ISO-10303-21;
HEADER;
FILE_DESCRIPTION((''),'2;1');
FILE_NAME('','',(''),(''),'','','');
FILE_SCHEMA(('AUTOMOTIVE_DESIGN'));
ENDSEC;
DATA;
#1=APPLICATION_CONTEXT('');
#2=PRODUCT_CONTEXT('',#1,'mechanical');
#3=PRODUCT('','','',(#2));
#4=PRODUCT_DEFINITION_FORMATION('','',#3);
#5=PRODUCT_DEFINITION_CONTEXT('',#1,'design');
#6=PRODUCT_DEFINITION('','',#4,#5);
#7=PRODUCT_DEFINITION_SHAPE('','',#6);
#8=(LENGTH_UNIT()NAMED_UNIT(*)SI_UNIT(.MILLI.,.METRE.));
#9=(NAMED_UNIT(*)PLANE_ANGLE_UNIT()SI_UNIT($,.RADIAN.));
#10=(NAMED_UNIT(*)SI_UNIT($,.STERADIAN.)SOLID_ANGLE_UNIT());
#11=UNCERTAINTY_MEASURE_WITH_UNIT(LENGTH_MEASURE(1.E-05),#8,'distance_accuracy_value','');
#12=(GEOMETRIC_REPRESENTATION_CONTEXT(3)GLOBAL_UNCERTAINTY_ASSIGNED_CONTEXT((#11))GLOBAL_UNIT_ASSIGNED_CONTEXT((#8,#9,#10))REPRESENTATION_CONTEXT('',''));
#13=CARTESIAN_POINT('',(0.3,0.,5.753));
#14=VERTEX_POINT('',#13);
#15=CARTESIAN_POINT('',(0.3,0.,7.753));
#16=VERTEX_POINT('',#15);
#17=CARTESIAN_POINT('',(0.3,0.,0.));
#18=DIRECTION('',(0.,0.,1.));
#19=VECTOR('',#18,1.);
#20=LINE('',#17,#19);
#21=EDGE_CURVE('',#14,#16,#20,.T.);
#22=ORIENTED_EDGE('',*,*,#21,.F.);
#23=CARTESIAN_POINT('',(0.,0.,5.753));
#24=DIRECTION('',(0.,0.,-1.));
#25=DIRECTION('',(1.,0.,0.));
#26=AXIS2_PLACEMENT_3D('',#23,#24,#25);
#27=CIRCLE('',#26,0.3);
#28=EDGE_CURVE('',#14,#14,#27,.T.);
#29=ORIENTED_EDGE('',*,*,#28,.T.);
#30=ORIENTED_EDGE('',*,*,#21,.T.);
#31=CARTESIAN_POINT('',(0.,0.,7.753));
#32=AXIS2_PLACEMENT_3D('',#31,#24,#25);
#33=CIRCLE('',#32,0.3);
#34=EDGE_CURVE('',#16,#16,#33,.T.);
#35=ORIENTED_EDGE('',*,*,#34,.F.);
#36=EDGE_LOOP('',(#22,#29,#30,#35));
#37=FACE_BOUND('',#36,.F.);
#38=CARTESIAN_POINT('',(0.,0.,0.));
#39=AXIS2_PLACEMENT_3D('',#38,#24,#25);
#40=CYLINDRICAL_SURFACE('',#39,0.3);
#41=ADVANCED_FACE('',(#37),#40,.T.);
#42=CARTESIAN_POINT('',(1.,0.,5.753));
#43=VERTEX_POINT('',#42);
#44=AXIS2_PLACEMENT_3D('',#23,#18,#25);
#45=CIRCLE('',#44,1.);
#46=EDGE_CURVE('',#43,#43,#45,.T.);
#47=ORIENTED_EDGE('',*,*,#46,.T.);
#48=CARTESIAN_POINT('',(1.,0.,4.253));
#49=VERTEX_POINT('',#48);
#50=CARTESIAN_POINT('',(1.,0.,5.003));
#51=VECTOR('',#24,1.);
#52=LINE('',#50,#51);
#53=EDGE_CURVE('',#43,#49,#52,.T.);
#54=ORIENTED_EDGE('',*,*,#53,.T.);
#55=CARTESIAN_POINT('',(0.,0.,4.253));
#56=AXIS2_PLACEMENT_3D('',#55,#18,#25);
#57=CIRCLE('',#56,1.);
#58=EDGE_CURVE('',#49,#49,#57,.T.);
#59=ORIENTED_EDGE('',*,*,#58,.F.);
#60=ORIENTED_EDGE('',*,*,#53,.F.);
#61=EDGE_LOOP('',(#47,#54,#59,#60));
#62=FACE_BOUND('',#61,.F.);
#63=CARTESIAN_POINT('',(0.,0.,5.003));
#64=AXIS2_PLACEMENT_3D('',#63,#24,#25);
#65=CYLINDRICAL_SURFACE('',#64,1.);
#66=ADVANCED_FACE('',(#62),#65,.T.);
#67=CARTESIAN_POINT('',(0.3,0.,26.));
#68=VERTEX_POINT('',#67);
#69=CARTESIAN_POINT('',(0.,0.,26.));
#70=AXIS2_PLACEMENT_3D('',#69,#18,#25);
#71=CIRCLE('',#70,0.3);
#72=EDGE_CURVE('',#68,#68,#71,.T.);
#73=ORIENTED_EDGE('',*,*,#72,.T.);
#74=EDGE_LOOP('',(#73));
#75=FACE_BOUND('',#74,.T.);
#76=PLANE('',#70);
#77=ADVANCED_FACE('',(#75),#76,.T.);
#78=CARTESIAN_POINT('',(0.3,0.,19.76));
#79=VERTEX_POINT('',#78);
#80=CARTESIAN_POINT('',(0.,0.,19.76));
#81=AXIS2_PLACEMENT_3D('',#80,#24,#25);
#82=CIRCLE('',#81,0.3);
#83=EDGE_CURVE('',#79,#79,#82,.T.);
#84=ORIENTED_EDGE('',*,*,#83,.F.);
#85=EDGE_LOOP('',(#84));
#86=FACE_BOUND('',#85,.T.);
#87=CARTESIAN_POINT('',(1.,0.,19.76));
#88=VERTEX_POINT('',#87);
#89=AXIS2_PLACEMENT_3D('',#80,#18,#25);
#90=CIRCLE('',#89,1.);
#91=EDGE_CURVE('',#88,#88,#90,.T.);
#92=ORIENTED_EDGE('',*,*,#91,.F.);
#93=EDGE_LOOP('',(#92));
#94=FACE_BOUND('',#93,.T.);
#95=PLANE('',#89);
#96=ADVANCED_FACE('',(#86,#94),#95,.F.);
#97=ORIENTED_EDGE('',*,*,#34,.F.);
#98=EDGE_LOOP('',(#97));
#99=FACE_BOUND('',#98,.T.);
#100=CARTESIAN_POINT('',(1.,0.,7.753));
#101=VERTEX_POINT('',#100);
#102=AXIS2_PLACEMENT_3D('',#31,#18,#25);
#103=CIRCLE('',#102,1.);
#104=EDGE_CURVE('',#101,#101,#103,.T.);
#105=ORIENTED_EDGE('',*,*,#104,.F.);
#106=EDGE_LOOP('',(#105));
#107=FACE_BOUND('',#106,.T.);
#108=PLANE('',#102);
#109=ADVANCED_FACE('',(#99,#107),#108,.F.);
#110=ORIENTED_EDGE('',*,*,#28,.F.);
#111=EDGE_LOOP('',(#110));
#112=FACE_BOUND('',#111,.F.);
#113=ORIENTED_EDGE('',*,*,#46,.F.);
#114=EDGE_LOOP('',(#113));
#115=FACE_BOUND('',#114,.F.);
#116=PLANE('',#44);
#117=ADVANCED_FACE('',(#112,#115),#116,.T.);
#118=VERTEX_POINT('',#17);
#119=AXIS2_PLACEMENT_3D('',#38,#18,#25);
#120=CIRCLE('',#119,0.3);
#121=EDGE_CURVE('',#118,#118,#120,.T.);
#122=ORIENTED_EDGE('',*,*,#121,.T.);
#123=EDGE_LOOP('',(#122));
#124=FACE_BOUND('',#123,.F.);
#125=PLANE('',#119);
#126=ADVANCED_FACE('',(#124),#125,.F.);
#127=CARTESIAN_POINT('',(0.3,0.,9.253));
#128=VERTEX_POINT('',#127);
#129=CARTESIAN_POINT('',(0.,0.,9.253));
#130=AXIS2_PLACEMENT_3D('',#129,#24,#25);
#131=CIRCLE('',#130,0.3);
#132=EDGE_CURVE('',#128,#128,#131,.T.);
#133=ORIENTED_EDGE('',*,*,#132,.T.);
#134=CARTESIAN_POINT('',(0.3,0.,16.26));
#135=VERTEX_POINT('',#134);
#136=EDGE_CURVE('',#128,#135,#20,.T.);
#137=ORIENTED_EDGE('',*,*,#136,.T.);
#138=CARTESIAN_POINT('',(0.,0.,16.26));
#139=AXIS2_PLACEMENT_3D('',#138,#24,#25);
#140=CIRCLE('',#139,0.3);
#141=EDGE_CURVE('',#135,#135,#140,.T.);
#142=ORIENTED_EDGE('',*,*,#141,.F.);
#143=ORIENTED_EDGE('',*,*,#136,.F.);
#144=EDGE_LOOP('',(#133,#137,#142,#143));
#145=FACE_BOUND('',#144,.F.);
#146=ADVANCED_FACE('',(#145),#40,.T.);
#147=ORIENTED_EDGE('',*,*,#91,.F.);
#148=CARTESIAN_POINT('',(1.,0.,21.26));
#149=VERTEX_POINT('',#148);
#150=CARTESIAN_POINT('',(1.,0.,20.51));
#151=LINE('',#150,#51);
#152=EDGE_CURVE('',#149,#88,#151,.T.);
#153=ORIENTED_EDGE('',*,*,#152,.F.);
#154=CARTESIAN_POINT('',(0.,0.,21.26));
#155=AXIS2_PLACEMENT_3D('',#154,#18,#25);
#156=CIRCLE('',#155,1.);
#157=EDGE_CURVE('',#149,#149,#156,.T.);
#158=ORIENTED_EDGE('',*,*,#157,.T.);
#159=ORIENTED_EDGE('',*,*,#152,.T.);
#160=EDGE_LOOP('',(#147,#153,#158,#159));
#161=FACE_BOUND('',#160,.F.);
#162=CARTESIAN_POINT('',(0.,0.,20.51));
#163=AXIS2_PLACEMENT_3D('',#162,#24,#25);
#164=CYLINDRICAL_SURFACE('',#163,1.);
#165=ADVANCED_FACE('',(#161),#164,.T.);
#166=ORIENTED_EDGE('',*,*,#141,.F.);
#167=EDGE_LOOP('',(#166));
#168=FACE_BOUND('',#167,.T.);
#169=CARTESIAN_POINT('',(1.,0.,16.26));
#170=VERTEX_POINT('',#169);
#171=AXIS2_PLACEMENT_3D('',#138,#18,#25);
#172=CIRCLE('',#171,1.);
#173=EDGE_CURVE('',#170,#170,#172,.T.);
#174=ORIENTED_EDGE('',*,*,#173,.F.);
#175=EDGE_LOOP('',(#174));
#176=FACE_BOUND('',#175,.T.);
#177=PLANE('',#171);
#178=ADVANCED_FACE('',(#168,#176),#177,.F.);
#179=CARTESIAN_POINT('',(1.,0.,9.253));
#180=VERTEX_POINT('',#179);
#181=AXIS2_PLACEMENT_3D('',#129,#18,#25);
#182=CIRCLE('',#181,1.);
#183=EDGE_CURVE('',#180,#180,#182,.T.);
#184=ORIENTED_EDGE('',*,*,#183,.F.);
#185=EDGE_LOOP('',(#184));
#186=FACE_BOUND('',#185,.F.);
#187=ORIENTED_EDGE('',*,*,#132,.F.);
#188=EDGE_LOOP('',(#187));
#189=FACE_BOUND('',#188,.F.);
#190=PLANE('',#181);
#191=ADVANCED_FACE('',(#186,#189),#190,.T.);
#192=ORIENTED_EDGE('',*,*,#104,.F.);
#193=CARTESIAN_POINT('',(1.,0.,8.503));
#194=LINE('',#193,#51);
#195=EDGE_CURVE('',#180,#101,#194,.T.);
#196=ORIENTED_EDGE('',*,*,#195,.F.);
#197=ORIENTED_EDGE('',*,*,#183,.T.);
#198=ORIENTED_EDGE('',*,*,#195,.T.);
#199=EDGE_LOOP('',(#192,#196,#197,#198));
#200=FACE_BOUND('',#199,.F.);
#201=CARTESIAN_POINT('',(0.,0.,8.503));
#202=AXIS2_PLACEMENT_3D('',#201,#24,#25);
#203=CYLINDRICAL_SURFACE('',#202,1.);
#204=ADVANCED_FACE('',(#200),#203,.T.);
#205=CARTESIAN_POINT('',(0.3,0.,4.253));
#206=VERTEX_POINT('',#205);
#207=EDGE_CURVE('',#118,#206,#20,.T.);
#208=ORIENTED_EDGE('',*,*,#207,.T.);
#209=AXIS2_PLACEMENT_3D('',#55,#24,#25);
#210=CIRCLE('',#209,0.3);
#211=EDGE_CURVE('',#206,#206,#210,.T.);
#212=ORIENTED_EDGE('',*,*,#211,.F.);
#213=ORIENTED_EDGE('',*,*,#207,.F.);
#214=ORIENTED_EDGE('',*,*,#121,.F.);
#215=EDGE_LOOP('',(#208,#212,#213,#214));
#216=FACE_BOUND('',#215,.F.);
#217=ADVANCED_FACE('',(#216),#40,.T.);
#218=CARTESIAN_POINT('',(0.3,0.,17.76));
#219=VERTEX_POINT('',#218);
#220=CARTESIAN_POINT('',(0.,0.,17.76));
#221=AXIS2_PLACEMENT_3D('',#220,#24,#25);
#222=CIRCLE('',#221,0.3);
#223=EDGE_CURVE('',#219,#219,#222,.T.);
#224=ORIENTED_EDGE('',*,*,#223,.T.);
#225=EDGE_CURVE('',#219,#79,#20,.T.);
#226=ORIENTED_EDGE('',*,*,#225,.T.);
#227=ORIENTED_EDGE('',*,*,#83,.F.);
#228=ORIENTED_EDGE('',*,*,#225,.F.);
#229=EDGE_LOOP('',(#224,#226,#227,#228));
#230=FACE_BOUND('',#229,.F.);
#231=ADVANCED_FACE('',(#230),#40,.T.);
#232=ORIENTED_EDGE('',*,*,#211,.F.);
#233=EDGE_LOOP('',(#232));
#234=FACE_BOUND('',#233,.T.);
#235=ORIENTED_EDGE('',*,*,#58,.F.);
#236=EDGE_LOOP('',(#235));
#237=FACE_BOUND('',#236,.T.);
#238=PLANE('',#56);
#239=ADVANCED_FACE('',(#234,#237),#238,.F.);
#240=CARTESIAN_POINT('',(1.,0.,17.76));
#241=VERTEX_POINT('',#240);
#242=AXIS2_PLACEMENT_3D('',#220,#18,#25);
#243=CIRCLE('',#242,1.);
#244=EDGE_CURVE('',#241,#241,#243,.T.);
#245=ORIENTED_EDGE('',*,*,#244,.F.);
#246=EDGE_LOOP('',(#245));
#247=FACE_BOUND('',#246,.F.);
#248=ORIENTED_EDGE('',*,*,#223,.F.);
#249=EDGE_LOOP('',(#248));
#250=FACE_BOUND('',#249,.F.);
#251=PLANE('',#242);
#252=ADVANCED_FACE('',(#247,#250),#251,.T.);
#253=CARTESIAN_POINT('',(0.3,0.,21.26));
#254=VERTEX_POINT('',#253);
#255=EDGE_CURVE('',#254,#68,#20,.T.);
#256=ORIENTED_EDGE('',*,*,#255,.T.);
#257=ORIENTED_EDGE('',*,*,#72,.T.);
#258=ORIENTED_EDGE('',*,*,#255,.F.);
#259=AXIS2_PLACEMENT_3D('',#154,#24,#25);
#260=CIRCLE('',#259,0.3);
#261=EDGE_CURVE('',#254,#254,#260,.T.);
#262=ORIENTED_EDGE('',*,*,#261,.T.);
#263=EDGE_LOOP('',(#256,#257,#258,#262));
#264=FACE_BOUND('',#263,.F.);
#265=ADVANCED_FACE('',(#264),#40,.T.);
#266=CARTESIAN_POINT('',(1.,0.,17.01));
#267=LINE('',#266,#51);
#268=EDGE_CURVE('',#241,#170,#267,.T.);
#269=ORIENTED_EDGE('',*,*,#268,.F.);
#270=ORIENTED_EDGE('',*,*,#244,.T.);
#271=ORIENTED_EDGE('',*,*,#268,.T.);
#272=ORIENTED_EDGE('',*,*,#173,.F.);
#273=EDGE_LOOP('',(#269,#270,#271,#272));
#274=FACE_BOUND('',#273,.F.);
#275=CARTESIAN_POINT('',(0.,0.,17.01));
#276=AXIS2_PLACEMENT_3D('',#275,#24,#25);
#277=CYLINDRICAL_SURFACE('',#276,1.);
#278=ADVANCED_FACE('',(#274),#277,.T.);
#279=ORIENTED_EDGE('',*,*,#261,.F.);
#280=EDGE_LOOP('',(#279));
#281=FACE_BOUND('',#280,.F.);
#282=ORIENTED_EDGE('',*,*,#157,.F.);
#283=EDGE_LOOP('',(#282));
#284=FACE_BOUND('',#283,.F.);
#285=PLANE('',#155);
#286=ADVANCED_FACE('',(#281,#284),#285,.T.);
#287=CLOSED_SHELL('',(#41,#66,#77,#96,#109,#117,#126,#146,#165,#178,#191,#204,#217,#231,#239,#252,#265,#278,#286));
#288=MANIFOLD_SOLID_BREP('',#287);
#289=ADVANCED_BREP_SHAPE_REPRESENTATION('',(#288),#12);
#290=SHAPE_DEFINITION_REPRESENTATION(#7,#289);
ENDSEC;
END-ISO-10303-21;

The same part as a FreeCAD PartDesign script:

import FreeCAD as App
import Part
import Sketcher

V = App.Vector
Q = App.Units.Quantity


def add_polygon(sketch, points):
    """Adds a closed chain of lines whose ends are joined by coincident constraints."""
    first, n = sketch.GeometryCount, len(points)
    for a, b in zip(points, points[1:] + points[:1]):
        sketch.addGeometry(Part.LineSegment(App.Vector(*a, 0), App.Vector(*b, 0)), False)
    for i in range(n):
        sketch.addConstraint(Sketcher.Constraint("Coincident", first + i, 2, first + (i + 1) % n, 1))

doc = App.newDocument("Part")
body = doc.addObject("PartDesign::Body", "Body")

# Sketch on XY plane
sketch1 = doc.addObject("Sketcher::SketchObject", "Sketch")
body.addObject(sketch1)
sketch1.AttachmentSupport = (doc.XY_Plane, [""])
sketch1.MapMode = "FlatFace"
sketch1.addGeometry(Part.Circle(V(0, 0, 0), V(0, 0, 1), 0.3), False)
sketch1.addConstraint([
    Sketcher.Constraint("Coincident", 0, 3, -1, 1),
    Sketcher.Constraint("Diameter", 0, Q("0.6 mm")),
])
pad1 = doc.addObject("PartDesign::Pad", "Pad")
body.addObject(pad1)
pad1.Profile = sketch1
pad1.Length = 26

# Sketch on XZ plane
sketch2 = doc.addObject("Sketcher::SketchObject", "Sketch001")
body.addObject(sketch2)
sketch2.AttachmentSupport = (doc.XZ_Plane, [""])
sketch2.MapMode = "FlatFace"
add_polygon(sketch2, [(0, 4.3), (0, 5.8), (1, 5.8), (1, 4.3)])  # lines 0-3
add_polygon(sketch2, [(0, 7.8), (0, 9.3), (1, 9.3), (1, 7.8)])  # lines 4-7
add_polygon(sketch2, [(0, 16.3), (0, 17.8), (1, 17.8), (1, 16.3)])  # lines 8-11
add_polygon(sketch2, [(0, 19.8), (0, 21.3), (1, 21.3), (1, 19.8)])  # lines 12-15
sketch2.addConstraint([
    Sketcher.Constraint("Vertical", 0),
    Sketcher.Constraint("Horizontal", 1),
    Sketcher.Constraint("Vertical", 2),
    Sketcher.Constraint("Horizontal", 3),
    Sketcher.Constraint("Vertical", 4),
    Sketcher.Constraint("Horizontal", 5),
    Sketcher.Constraint("Vertical", 6),
    Sketcher.Constraint("Horizontal", 7),
    Sketcher.Constraint("Vertical", 8),
    Sketcher.Constraint("Horizontal", 9),
    Sketcher.Constraint("Vertical", 10),
    Sketcher.Constraint("Horizontal", 11),
    Sketcher.Constraint("Vertical", 12),
    Sketcher.Constraint("Horizontal", 13),
    Sketcher.Constraint("Vertical", 14),
    Sketcher.Constraint("Horizontal", 15),
    Sketcher.Constraint("PointOnObject", 0, 2, -2),
    Sketcher.Constraint("PointOnObject", 4, 2, -2),
    Sketcher.Constraint("PointOnObject", 8, 2, -2),
    Sketcher.Constraint("PointOnObject", 12, 2, -2),
    Sketcher.Constraint("Vertical", 2, 2, 5, 2),
    Sketcher.Constraint("Vertical", 6, 2, 9, 2),
    Sketcher.Constraint("Vertical", 10, 2, 13, 2),
    Sketcher.Constraint("Equal", 2, 4),
    Sketcher.Constraint("Equal", 6, 8),
    Sketcher.Constraint("Equal", 10, 12),
    Sketcher.Constraint("DistanceX", 1, 1, 1, 2, Q("1 mm")),
    Sketcher.Constraint("DistanceY", 0, 1, 0, 2, Q("1.5 mm")),
    Sketcher.Constraint("DistanceY", 3, 2, 4, 2, Q("5 mm")),
    Sketcher.Constraint("DistanceY", 11, 2, 12, 2, Q("5 mm")),
    Sketcher.Constraint("DistanceY", -1, 1, 8, 2, Q("17.76 mm")),
    Sketcher.Constraint("DistanceY", -1, 1, 0, 2, Q("5.753 mm")),
])
revolution = doc.addObject("PartDesign::Revolution", "Revolution")
body.addObject(revolution)
revolution.Profile = sketch2
revolution.ReferenceAxis = (sketch2, ["V_Axis"])
revolution.Angle = 360

doc.recompute()
